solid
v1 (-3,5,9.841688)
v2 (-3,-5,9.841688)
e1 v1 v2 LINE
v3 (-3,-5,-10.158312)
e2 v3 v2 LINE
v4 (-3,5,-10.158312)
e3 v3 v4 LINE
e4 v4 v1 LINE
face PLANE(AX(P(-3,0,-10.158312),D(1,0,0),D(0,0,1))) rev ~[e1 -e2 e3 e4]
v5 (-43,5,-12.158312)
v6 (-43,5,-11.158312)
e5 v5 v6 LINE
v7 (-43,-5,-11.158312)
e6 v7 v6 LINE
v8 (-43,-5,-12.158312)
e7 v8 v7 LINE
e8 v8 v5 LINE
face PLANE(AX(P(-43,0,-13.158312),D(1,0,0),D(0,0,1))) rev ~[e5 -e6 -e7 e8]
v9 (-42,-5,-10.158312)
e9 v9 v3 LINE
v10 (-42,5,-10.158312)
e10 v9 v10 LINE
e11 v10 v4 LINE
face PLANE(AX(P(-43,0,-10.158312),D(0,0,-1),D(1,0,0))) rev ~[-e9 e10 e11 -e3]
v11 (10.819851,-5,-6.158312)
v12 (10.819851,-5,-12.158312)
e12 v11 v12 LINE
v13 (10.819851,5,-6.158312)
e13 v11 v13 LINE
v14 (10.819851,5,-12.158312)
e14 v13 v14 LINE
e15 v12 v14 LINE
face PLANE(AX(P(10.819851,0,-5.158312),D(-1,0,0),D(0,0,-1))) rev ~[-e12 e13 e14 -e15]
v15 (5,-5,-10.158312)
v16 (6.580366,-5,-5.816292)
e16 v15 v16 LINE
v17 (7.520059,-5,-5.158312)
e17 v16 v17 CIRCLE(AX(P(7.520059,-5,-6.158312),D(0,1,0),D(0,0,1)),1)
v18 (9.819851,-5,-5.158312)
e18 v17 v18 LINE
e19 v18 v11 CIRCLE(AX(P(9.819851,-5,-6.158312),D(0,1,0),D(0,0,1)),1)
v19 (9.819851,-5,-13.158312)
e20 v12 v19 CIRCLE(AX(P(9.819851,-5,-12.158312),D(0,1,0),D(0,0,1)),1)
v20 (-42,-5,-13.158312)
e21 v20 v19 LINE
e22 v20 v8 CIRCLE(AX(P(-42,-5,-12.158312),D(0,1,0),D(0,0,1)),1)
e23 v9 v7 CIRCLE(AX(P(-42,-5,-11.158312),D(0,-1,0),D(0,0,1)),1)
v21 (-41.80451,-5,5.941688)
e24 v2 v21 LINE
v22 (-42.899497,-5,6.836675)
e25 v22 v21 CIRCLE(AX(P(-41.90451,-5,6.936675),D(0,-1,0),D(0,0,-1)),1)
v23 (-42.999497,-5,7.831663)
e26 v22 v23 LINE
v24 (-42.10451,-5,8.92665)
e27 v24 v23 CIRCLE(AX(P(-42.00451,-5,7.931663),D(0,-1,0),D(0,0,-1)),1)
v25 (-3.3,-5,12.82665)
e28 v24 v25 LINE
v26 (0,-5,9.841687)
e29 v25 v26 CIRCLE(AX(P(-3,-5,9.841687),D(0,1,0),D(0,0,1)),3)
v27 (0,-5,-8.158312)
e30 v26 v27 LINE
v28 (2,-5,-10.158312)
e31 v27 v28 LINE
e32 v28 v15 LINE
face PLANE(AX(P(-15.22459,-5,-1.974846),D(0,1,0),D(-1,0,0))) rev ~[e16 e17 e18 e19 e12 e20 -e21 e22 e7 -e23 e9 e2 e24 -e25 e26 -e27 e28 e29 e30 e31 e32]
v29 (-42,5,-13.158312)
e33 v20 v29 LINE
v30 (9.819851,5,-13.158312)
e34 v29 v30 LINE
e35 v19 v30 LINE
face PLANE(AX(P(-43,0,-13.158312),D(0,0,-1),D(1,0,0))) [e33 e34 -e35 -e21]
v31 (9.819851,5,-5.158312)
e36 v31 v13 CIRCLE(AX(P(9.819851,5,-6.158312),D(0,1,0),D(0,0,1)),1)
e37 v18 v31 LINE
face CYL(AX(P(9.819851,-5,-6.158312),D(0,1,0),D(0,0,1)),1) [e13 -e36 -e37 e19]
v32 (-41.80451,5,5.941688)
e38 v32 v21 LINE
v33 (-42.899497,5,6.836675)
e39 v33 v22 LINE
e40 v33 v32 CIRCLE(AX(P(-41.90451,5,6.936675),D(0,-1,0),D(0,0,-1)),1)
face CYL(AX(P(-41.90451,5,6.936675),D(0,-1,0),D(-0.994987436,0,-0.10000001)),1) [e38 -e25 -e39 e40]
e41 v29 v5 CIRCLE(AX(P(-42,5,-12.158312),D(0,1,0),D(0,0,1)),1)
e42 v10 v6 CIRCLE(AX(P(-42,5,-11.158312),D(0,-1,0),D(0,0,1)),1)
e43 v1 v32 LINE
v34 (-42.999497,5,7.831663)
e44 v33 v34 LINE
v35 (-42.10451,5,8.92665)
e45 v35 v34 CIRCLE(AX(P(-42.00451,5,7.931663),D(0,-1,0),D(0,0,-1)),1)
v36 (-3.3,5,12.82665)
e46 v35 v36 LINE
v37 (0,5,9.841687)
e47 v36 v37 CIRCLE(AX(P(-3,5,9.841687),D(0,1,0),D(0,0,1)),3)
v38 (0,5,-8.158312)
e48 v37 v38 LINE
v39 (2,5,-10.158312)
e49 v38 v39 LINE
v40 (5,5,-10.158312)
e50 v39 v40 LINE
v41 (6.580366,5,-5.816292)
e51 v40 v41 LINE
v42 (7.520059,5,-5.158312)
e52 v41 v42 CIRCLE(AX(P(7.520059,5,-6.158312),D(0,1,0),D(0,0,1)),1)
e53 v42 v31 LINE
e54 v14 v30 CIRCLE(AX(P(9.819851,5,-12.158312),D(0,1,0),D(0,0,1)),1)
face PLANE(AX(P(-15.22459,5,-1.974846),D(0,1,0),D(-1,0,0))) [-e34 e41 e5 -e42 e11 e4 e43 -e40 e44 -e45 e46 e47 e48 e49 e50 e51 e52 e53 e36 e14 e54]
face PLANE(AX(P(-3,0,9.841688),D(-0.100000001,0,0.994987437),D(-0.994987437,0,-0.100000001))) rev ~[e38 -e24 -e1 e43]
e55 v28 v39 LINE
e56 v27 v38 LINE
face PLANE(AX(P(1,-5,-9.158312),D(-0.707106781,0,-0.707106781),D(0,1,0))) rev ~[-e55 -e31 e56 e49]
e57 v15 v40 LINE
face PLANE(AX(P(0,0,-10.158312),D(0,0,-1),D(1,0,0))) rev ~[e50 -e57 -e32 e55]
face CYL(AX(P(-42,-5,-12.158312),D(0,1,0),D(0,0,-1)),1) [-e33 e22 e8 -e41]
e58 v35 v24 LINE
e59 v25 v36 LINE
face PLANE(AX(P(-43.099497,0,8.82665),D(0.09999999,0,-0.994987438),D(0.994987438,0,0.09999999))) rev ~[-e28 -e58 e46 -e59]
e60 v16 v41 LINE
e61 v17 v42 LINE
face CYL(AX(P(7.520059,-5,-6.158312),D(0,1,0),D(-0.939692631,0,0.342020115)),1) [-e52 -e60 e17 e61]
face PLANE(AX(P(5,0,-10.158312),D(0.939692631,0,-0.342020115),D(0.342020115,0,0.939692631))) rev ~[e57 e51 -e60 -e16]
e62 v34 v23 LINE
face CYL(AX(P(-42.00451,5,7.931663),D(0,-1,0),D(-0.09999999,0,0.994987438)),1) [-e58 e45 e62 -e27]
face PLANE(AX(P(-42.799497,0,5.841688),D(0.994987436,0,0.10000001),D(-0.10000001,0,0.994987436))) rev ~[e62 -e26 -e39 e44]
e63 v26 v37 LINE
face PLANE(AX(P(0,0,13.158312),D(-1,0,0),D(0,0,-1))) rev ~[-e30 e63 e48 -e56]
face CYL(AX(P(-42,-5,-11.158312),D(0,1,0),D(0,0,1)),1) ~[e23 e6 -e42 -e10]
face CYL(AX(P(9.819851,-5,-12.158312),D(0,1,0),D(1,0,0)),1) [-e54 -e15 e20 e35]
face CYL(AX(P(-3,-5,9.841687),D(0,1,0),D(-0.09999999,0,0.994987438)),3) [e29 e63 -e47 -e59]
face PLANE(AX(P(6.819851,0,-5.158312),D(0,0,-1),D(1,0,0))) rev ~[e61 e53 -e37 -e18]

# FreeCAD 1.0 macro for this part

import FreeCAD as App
import Part
import Sketcher
Q = App.Units.Quantity


def edges_at(feature, points):
    """Names of the edges that pass closest to the given points."""
    edges = feature.Shape.Edges
    near = lambda p: min(range(len(edges)), key=lambda i: edges[i].distToShape(Part.Vertex(*p))[0])
    return sorted({f"Edge{near(p) + 1}" for p in points})

doc = App.newDocument("Part")
body = doc.addObject("PartDesign::Body", "Body")

# Sketch on XZ plane
sketch1 = body.newObject("Sketcher::SketchObject", "Sketch")
sketch1.AttachmentSupport = (doc.getObject("XZ_Plane"), [""])
sketch1.MapMode = "FlatFace"
sketch1.addGeometry(Part.LineSegment(App.Vector(0, 13.2, 0), App.Vector(-43.1, 8.8, 0)), False)
sketch1.addGeometry(Part.LineSegment(App.Vector(-43.1, 8.8, 0), App.Vector(-42.8, 5.8, 0)), False)
sketch1.addGeometry(Part.LineSegment(App.Vector(-42.8, 5.8, 0), App.Vector(-3, 9.8, 0)), False)
sketch1.addGeometry(Part.LineSegment(App.Vector(-3, 9.8, 0), App.Vector(-3, -10.2, 0)), False)
sketch1.addGeometry(Part.LineSegment(App.Vector(-3, -10.2, 0), App.Vector(-43, -10.2, 0)), False)
sketch1.addGeometry(Part.LineSegment(App.Vector(-43, -10.2, 0), App.Vector(-43, -13.2, 0)), False)
sketch1.addGeometry(Part.LineSegment(App.Vector(-43, -13.2, 0), App.Vector(10.8, -13.2, 0)), False)
sketch1.addGeometry(Part.LineSegment(App.Vector(10.8, -13.2, 0), App.Vector(10.8, -5.2, 0)), False)
sketch1.addGeometry(Part.LineSegment(App.Vector(10.8, -5.2, 0), App.Vector(6.8, -5.2, 0)), False)
sketch1.addGeometry(Part.LineSegment(App.Vector(6.8, -5.2, 0), App.Vector(5, -10.2, 0)), False)
sketch1.addGeometry(Part.LineSegment(App.Vector(5, -10.2, 0), App.Vector(0, -10.2, 0)), False)
sketch1.addGeometry(Part.LineSegment(App.Vector(0, -10.2, 0), App.Vector(0, 13.2, 0)), False)
sketch1.addConstraint(Sketcher.Constraint("Coincident", 0, 2, 1, 1))
sketch1.addConstraint(Sketcher.Constraint("Coincident", 1, 2, 2, 1))
sketch1.addConstraint(Sketcher.Constraint("Coincident", 2, 2, 3, 1))
sketch1.addConstraint(Sketcher.Constraint("Coincident", 3, 2, 4, 1))
sketch1.addConstraint(Sketcher.Constraint("Coincident", 4, 2, 5, 1))
sketch1.addConstraint(Sketcher.Constraint("Coincident", 5, 2, 6, 1))
sketch1.addConstraint(Sketcher.Constraint("Coincident", 6, 2, 7, 1))
sketch1.addConstraint(Sketcher.Constraint("Coincident", 7, 2, 8, 1))
sketch1.addConstraint(Sketcher.Constraint("Coincident", 8, 2, 9, 1))
sketch1.addConstraint(Sketcher.Constraint("Coincident", 9, 2, 10, 1))
sketch1.addConstraint(Sketcher.Constraint("Coincident", 10, 2, 11, 1))
sketch1.addConstraint(Sketcher.Constraint("Coincident", 11, 2, 0, 1))
sketch1.addConstraint(Sketcher.Constraint("Vertical", 3))
sketch1.addConstraint(Sketcher.Constraint("Horizontal", 4))
sketch1.addConstraint(Sketcher.Constraint("Vertical", 5))
sketch1.addConstraint(Sketcher.Constraint("Horizontal", 6))
sketch1.addConstraint(Sketcher.Constraint("Vertical", 7))
sketch1.addConstraint(Sketcher.Constraint("Horizontal", 8))
sketch1.addConstraint(Sketcher.Constraint("Horizontal", 10))
sketch1.addConstraint(Sketcher.Constraint("Vertical", 11))
sketch1.addConstraint(Sketcher.Constraint("PointOnObject", 10, 2, -2))
sketch1.addConstraint(Sketcher.Constraint("Perpendicular", 0, 1))
sketch1.addConstraint(Sketcher.Constraint("Perpendicular", 1, 2))
sketch1.addConstraint(Sketcher.Constraint("Horizontal", 4, 2, 9, 2))
sketch1.addConstraint(Sketcher.Constraint("DistanceX", 4, 2, 4, 1, Q("40 mm")))
sketch1.addConstraint(Sketcher.Constraint("DistanceX", 8, 2, 8, 1, Q("4 mm")))
sketch1.addConstraint(Sketcher.Constraint("DistanceX", 10, 2, 10, 1, Q("5 mm")))
sketch1.addConstraint(Sketcher.Constraint("DistanceY", 3, 2, 3, 1, Q("20 mm")))
sketch1.addConstraint(Sketcher.Constraint("DistanceY", 5, 2, 5, 1, Q("3 mm")))
sketch1.addConstraint(Sketcher.Constraint("DistanceY", 7, 1, 7, 2, Q("8 mm")))
sketch1.addConstraint(Sketcher.Constraint("Angle", 9, Q("-109.999998 deg")))
sketch1.addConstraint(Sketcher.Constraint("Distance", 1, Q("3 mm")))
sketch1.addConstraint(Sketcher.Constraint("Distance", 2, Q("40 mm")))
sketch1.addConstraint(Sketcher.Constraint("DistanceX", 2, 2, -1, 1, Q("3 mm")))
sketch1.addConstraint(Sketcher.Constraint("DistanceY", 1, 2, 2, 2, Q("4 mm")))
sketch1.addConstraint(Sketcher.Constraint("DistanceY", -1, 1, 0, 2, Q("8.82665 mm")))
pad1 = body.newObject("PartDesign::Pad", "Pad")
pad1.Profile = sketch1
pad1.Length = 10
pad1.Midplane = True
doc.recompute()

fillet = body.newObject("PartDesign::Fillet", "Fillet")
fillet.Base = (pad1, edges_at(pad1, [(0, 0, 13.158)]))
fillet.Radius = 3
doc.recompute()

chamfer = body.newObject("PartDesign::Chamfer", "Chamfer")
chamfer.Base = (fillet, edges_at(fillet, [(0, 0, -10.158)]))
chamfer.Size = 2
doc.recompute()

fillet2 = body.newObject("PartDesign::Fillet", "Fillet001")
fillet2.Base = (chamfer, edges_at(chamfer, [
    (-42.799, 0, 5.842),
    (-43.099, 0, 8.827),
    (-43, 0, -10.158),
    (-43, 0, -13.158),
    (10.82, 0, -5.158),
    (6.82, 0, -5.158),
    (10.82, 0, -13.158),
]))
fillet2.Radius = 1

doc.recompute()
